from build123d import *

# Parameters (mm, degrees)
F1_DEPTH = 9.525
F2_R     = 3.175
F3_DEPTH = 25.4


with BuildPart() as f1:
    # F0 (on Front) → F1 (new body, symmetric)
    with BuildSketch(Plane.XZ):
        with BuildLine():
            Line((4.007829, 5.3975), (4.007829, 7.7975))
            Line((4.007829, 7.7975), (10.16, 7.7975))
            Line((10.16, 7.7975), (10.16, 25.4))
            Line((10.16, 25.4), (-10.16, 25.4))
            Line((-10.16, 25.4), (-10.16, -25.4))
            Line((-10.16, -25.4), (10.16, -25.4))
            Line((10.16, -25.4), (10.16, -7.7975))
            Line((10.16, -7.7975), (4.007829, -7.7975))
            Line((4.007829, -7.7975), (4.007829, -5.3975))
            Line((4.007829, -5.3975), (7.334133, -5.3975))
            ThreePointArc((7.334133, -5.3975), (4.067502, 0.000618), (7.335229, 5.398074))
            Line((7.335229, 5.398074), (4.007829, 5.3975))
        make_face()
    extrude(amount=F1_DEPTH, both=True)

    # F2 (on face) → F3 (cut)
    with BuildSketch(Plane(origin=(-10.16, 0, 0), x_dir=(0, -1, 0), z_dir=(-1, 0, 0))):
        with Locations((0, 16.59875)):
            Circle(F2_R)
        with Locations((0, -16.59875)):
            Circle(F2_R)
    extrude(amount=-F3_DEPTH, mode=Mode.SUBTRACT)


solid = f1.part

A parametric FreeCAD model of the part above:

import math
import FreeCAD as App
import Part
import Sketcher
Q = App.Units.Quantity

doc = App.newDocument("Part")
params = doc.addObject("Spreadsheet::Sheet", "Params")
for row, (alias, value) in enumerate([
    ("sketch1_height", "2 in"),
    ("sketch1_width", "0.8 in"),
    ("sketch1_length", "0.131 in"),
    ("pad1_length", "0.75 in"),
    ("sketch2_diameter", "0.25 in"),
    ("pocket1_length", "1 in"),
], start=1):
    params.set(f"A{row}", alias)
    params.set(f"B{row}", "=" + value)
    params.setAlias(f"B{row}", alias)

body = doc.addObject("PartDesign::Body", "Body")

# Sketch on XZ plane
sketch1 = body.newObject("Sketcher::SketchObject", "Sketch")
sketch1.AttachmentSupport = (doc.getObject("XZ_Plane"), [""])
sketch1.MapMode = "FlatFace"
sketch1.addGeometry([
    Part.LineSegment(App.Vector(4.007829, 5.3975, 0), App.Vector(4.007829, 7.7975, 0)),  # 0
    Part.LineSegment(App.Vector(4.007829, 7.7975, 0), App.Vector(10.16, 7.7975, 0)),  # 1
    Part.LineSegment(App.Vector(10.16, 7.7975, 0), App.Vector(10.16, 25.4, 0)),  # 2
    Part.LineSegment(App.Vector(10.16, 25.4, 0), App.Vector(-10.16, 25.4, 0)),  # 3
    Part.LineSegment(App.Vector(-10.16, 25.4, 0), App.Vector(-10.16, -25.4, 0)),  # 4
    Part.LineSegment(App.Vector(-10.16, -25.4, 0), App.Vector(10.16, -25.4, 0)),  # 5
    Part.LineSegment(App.Vector(10.16, -25.4, 0), App.Vector(10.16, -7.7975, 0)),  # 6
    Part.LineSegment(App.Vector(10.16, -7.7975, 0), App.Vector(4.007829, -7.7975, 0)),  # 7
    Part.LineSegment(App.Vector(4.007829, -7.7975, 0), App.Vector(4.007829, -5.3975, 0)),  # 8
    Part.LineSegment(App.Vector(4.007829, -5.3975, 0), App.Vector(7.334133, -5.3975, 0)),  # 9
    Part.ArcOfCircle(Part.Circle(App.Vector(10.16, 0, 0), App.Vector(0, 0, 1), 6.092498), math.radians(117.622721), math.radians(242.365646)),  # 10
    Part.LineSegment(App.Vector(7.335229, 5.398074, 0), App.Vector(4.007829, 5.3975, 0)),  # 11
], False)
sketch1.addConstraint([
    Sketcher.Constraint("Coincident", 0, 2, 1, 1),
    Sketcher.Constraint("Coincident", 1, 2, 2, 1),
    Sketcher.Constraint("Coincident", 2, 2, 3, 1),
    Sketcher.Constraint("Coincident", 3, 2, 4, 1),
    Sketcher.Constraint("Coincident", 4, 2, 5, 1),
    Sketcher.Constraint("Coincident", 5, 2, 6, 1),
    Sketcher.Constraint("Coincident", 6, 2, 7, 1),
    Sketcher.Constraint("Coincident", 7, 2, 8, 1),
    Sketcher.Constraint("Coincident", 8, 2, 9, 1),
    Sketcher.Constraint("Coincident", 9, 2, 10, 2),
    Sketcher.Constraint("Coincident", 10, 1, 11, 1),
    Sketcher.Constraint("Coincident", 11, 2, 0, 1),
    Sketcher.Constraint("Vertical", 0),
    Sketcher.Constraint("Horizontal", 1),
    Sketcher.Constraint("Vertical", 2),
    Sketcher.Constraint("Horizontal", 3),
    Sketcher.Constraint("Vertical", 4),
    Sketcher.Constraint("Horizontal", 5),
    Sketcher.Constraint("Vertical", 6),
    Sketcher.Constraint("Horizontal", 7),
    Sketcher.Constraint("Vertical", 8),
    Sketcher.Constraint("Horizontal", 9),
    Sketcher.Constraint("Symmetric", 2, 2, 4, 2, -1, 1),
    Sketcher.Constraint("Symmetric", 1, 2, 6, 2, -1),
    Sketcher.Constraint("Symmetric", 8, 2, 11, 2, -1),
    Sketcher.Constraint("PointOnObject", 10, 3, -1),
    Sketcher.Constraint("Vertical", 10, 3, 1, 2),
    Sketcher.Constraint("DistanceY", 4, 2, 4, 1, Q("2 in")),
    Sketcher.Constraint("DistanceX", 3, 2, 3, 1, Q("0.8 in")),
    Sketcher.Constraint("Radius", 10, Q("6.092498 mm")),
    Sketcher.Constraint("Distance", 11, Q("0.131 in")),
    Sketcher.Constraint("DistanceY", 8, 2, 11, 2, Q("0.425 in")),
    Sketcher.Constraint("DistanceY", 0, 1, 0, 2, Q("2.4 mm")),
    Sketcher.Constraint("DistanceX", 1, 1, 1, 2, Q("6.152171 mm")),
])
sketch1.setExpression("Constraints[27]", "Params.sketch1_height")
sketch1.setExpression("Constraints[28]", "Params.sketch1_width")
sketch1.setExpression("Constraints[30]", "Params.sketch1_length")
pad1 = body.newObject("PartDesign::Pad", "Pad")
pad1.Profile = sketch1
pad1.setExpression("Length", "Params.pad1_length")
pad1.Midplane = True

# Sketch on YZ plane
sketch2 = body.newObject("Sketcher::SketchObject", "Sketch001")
sketch2.AttachmentSupport = (doc.getObject("YZ_Plane"), [""])
sketch2.MapMode = "FlatFace"
sketch2.AttachmentOffset = App.Placement(App.Vector(0, 0, -0.4 * 25.4), App.Rotation())
sketch2.addGeometry([
    Part.Circle(App.Vector(0, 16.59875, 0), App.Vector(0, 0, 1), 3.175),
    Part.Circle(App.Vector(0, -16.59875, 0), App.Vector(0, 0, 1), 3.175),
], False)
sketch2.addConstraint([
    Sketcher.Constraint("Equal", 0, 1),
    Sketcher.Constraint("Symmetric", 0, 3, 1, 3, -1, 1),
    Sketcher.Constraint("PointOnObject", 0, 3, -2),
    Sketcher.Constraint("Diameter", 0, Q("0.25 in")),
    Sketcher.Constraint("DistanceY", 1, 3, 0, 3, Q("33.1975 mm")),
])
sketch2.setExpression("Constraints[3]", "Params.sketch2_diameter")
pocket1 = body.newObject("PartDesign::Pocket", "Pocket")
pocket1.Profile = sketch2
pocket1.setExpression("Length", "Params.pocket1_length")
pocket1.Reversed = True

doc.recompute()
